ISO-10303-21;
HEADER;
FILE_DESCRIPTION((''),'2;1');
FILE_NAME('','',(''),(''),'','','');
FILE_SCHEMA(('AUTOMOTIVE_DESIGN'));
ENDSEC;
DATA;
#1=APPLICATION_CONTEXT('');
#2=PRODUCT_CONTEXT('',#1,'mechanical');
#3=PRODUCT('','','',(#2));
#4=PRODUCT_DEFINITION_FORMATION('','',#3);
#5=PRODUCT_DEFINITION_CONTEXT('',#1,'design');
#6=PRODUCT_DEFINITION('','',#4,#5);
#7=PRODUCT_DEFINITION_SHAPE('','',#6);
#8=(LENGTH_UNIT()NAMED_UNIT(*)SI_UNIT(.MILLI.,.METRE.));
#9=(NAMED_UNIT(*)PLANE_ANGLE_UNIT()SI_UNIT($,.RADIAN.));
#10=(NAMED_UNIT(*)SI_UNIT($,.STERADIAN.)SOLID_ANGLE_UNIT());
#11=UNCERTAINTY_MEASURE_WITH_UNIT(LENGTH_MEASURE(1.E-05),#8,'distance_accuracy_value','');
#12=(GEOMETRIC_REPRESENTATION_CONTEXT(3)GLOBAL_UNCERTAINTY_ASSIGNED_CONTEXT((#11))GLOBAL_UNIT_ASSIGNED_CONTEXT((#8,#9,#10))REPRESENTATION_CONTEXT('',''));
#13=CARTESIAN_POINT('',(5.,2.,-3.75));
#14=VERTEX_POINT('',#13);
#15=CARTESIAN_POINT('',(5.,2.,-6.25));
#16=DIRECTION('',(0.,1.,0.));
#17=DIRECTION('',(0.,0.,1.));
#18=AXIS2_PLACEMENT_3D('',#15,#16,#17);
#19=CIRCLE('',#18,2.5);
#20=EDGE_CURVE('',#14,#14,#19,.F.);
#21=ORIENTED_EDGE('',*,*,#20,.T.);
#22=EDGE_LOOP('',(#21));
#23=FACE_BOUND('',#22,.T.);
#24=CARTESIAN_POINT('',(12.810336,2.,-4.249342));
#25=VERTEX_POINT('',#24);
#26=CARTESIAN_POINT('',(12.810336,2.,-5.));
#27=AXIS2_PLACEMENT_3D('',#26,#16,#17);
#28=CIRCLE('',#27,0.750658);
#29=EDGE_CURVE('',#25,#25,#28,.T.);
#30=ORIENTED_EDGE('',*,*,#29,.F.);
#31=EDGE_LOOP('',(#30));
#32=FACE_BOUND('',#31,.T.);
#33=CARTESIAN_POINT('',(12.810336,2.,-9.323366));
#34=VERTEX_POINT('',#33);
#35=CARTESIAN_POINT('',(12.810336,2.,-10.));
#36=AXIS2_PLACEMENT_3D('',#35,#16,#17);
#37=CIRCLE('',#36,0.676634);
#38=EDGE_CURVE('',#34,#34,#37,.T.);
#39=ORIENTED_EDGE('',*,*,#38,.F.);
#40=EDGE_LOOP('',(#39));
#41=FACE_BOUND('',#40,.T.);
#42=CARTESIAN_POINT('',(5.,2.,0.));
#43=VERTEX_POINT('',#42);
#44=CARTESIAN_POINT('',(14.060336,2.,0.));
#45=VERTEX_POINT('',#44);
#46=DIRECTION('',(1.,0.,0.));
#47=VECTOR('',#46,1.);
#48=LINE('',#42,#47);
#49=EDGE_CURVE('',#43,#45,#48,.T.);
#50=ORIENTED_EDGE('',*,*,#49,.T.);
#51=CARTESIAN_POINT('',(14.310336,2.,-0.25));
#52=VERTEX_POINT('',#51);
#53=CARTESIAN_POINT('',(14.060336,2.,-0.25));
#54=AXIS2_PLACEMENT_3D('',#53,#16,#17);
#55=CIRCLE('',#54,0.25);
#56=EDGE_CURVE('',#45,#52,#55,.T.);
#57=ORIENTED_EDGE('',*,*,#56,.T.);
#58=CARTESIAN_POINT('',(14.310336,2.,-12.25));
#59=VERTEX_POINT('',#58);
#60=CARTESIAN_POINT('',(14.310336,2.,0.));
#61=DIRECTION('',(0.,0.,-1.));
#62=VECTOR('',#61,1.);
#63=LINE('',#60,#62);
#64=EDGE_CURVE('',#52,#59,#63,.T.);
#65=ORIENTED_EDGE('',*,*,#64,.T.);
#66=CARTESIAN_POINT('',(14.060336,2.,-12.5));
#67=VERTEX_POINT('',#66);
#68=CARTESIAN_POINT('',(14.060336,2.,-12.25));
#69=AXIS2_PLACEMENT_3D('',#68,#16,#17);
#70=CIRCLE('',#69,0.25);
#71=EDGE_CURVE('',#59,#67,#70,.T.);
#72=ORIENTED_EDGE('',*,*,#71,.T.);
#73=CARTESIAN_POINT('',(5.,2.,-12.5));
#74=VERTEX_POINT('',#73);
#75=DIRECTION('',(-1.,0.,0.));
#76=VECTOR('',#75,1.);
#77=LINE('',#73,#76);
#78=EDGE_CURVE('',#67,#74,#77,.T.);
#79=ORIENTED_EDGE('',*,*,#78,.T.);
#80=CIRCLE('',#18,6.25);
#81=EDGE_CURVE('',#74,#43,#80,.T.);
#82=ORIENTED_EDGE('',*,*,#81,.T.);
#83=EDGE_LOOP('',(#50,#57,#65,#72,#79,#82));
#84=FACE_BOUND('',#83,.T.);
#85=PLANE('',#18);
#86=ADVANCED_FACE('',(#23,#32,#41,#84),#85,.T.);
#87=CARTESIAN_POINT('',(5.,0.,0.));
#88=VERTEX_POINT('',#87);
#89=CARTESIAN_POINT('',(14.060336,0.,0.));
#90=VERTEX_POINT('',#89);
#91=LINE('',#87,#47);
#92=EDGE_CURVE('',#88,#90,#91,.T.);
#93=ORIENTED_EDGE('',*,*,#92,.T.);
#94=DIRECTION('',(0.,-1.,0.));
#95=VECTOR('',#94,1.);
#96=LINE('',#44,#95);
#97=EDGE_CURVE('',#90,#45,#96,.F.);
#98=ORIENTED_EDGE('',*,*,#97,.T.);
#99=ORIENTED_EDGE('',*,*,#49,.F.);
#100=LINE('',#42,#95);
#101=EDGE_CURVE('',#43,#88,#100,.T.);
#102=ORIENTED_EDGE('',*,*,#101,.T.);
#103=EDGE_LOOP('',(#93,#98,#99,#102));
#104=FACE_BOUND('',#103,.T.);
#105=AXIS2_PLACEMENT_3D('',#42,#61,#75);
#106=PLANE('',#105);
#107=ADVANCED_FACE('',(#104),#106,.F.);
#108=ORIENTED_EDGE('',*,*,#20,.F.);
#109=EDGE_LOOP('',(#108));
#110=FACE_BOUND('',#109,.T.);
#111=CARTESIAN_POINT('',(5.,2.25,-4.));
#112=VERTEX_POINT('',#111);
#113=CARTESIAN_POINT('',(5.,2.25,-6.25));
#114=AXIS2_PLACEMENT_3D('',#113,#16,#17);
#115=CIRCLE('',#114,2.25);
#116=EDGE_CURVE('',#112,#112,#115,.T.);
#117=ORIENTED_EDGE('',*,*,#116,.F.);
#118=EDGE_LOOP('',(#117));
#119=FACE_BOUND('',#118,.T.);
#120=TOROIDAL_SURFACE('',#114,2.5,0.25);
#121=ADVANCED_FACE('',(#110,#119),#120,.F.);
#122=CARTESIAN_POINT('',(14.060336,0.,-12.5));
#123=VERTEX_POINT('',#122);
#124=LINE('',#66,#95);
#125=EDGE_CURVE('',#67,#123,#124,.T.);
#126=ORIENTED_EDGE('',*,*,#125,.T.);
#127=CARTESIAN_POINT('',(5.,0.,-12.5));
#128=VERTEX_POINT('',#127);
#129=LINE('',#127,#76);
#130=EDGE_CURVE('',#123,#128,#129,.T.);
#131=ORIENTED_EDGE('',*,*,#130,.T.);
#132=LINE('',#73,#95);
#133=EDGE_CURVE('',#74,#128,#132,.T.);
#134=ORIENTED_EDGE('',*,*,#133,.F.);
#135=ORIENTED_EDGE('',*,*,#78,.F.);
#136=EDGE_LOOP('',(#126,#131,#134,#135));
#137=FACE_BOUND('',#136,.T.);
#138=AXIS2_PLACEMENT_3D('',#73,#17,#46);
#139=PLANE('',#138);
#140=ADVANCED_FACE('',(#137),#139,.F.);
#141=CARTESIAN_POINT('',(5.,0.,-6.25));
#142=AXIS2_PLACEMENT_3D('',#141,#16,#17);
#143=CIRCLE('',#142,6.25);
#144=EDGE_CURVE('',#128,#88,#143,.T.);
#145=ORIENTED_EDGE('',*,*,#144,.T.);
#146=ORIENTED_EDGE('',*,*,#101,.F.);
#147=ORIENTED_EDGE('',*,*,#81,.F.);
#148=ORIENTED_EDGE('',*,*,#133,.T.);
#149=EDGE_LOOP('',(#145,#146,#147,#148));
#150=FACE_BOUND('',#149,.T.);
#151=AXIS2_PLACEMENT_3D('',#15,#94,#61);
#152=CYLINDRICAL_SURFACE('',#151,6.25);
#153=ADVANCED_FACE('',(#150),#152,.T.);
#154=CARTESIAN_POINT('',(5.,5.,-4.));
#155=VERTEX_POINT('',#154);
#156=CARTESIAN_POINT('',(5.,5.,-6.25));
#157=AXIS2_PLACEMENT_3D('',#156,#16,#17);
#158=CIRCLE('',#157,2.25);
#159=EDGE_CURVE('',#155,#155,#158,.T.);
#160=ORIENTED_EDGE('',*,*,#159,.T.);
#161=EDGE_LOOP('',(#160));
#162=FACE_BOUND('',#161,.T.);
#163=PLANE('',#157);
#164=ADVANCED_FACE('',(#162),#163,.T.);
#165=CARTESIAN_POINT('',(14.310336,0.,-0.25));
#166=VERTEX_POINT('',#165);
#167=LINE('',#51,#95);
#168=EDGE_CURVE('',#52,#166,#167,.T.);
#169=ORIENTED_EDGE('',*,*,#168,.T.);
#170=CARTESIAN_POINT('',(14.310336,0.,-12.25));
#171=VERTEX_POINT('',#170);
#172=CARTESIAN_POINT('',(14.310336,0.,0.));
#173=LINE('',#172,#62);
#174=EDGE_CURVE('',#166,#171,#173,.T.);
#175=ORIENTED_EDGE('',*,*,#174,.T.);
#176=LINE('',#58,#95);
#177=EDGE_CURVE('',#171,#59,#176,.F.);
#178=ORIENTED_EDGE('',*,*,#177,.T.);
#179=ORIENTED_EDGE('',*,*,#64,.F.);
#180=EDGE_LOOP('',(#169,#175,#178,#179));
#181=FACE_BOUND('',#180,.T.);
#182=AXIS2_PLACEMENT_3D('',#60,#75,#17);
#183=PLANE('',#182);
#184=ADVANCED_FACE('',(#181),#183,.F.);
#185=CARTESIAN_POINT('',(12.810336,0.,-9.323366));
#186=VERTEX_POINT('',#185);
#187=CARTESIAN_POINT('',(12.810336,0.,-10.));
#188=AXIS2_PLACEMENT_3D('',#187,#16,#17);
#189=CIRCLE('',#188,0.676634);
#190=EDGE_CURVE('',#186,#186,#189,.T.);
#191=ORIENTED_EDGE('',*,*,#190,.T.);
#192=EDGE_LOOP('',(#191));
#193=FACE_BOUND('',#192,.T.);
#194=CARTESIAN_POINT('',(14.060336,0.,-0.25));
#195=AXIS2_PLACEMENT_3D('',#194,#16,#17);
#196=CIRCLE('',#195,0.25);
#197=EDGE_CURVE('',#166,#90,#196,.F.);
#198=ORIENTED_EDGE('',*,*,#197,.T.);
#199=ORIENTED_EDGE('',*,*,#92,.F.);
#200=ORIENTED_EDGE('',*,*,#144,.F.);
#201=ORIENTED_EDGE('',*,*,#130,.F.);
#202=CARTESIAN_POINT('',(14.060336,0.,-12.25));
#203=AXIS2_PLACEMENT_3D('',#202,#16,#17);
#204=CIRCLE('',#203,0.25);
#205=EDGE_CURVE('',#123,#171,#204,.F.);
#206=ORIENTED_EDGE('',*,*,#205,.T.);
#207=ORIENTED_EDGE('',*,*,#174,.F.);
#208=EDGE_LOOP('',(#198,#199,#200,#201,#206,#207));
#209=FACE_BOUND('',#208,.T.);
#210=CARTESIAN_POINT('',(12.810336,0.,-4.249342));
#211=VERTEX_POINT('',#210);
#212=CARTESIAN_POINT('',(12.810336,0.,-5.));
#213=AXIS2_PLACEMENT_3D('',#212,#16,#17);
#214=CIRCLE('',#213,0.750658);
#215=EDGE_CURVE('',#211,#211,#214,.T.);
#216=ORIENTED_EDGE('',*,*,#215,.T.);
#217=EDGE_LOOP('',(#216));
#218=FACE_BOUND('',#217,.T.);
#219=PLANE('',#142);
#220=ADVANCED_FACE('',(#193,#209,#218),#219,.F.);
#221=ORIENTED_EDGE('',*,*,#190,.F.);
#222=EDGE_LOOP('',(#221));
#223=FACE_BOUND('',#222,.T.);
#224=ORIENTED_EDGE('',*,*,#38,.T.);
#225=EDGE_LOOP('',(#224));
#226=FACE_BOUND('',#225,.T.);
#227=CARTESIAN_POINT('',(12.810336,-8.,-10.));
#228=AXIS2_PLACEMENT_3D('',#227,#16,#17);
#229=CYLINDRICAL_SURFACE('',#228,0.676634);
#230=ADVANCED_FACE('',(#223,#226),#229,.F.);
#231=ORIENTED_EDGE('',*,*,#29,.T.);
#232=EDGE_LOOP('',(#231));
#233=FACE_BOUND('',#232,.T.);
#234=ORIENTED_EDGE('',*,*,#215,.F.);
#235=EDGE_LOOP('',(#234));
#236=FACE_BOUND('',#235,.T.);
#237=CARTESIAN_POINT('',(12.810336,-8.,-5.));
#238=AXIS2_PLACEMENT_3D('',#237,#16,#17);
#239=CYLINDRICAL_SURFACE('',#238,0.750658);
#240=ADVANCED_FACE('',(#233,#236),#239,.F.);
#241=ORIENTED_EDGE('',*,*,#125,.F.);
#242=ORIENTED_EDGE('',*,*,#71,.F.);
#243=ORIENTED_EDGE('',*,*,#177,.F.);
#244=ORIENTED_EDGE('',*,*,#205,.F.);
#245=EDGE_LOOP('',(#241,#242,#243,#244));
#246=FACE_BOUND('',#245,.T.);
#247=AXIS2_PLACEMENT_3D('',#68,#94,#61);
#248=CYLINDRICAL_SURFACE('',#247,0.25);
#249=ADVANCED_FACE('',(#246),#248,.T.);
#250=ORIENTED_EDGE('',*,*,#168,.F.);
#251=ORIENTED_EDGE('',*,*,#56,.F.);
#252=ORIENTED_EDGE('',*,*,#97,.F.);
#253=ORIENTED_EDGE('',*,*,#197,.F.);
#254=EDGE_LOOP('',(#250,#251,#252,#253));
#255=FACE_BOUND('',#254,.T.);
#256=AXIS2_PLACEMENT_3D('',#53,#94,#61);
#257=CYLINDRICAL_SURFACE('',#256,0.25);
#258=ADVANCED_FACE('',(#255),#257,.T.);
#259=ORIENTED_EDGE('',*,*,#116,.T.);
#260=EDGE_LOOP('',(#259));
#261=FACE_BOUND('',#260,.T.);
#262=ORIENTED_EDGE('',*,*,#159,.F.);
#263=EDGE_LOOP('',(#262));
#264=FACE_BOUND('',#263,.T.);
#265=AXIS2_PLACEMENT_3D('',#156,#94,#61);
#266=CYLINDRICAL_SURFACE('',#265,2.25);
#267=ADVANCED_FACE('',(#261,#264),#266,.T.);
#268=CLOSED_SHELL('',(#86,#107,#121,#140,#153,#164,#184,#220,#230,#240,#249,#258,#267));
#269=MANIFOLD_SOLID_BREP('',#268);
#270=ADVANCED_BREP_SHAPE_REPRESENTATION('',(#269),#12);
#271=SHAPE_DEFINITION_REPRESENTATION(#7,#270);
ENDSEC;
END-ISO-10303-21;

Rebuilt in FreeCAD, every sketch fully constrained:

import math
import FreeCAD as App
import Part
import Sketcher

V = App.Vector


def edges_at(feature, points):
    """Names of the edges that pass closest to the given points."""
    edges = feature.Shape.Edges
    near = lambda p: min(range(len(edges)), key=lambda i: edges[i].distToShape(Part.Vertex(*p))[0])
    return sorted({f"Edge{near(p) + 1}" for p in points})

doc = App.newDocument("Part")
params = doc.addObject("Spreadsheet::Sheet", "Params")
for row, (alias, value) in enumerate([
    ("sketch1_radius", "6.25 mm"),
    ("pad1_length", "2 mm"),
    ("sketch2_diameter", "4.5 mm"),
    ("pad2_length", "3 mm"),
    ("pocket1_length", "10 mm"),
    ("fillet_radius", "0.25 mm"),
    ("fillet2_radius", "0.25 mm"),
], start=1):
    params.set(f"A{row}", alias)
    params.set(f"B{row}", "=" + value)
    params.setAlias(f"B{row}", alias)

body = doc.addObject("PartDesign::Body", "Body")

sketch1 = body.newObject("Sketcher::SketchObject", "Sketch")
sketch1.AttachmentSupport = (doc.getObject("XZ_Plane"), [""])
sketch1.MapMode = "FlatFace"
sketch1.addGeometry([
    Part.LineSegment(V(5, 0, 0), V(14, 0, 0)),
    Part.LineSegment(V(14, 0, 0), V(14, -12, 0)),
    Part.LineSegment(V(14, -12, 0), V(5, -12, 0)),
    Part.ArcOfCircle(Part.Circle(V(5, -6, 0), V(0, 0, 1), 6), math.radians(90), math.radians(270)),
], False)
sketch1.addConstraint([
    Sketcher.Constraint("Coincident", 0, 2, 1, 1),
    Sketcher.Constraint("Coincident", 1, 2, 2, 1),
    Sketcher.Constraint("Tangent", 2, 2, 3, 2),
    Sketcher.Constraint("Tangent", 3, 1, 0, 1),
    Sketcher.Constraint("Horizontal", 0),
    Sketcher.Constraint("Vertical", 1),
    Sketcher.Constraint("Horizontal", 2),
    Sketcher.Constraint("PointOnObject", 0, 2, -1),
    Sketcher.Constraint("Radius", 3, 6.25),
    Sketcher.Constraint("DistanceX", -1, 1, 3, 3, 5.0),
    Sketcher.Constraint("DistanceX", 0, 1, 0, 2, 9.310336),
])
sketch1.setExpression("Constraints[8]", "Params.sketch1_radius")
pad1 = body.newObject("PartDesign::Pad", "Pad")
pad1.Profile = sketch1
pad1.setExpression("Length", "Params.pad1_length")
pad1.Reversed = True

sketch2 = body.newObject("Sketcher::SketchObject", "Sketch001")
sketch2.AttachmentSupport = (doc.getObject("XZ_Plane"), [""])
sketch2.MapMode = "FlatFace"
sketch2.AttachmentOffset = App.Placement(V(0, 0, -2), App.Rotation())
sketch2.addGeometry(Part.Circle(V(5, -6.2, 0), V(0, 0, 1), 2.2), False)
sketch2.addConstraint([
    Sketcher.Constraint("Diameter", 0, 4.5),
    Sketcher.Constraint("DistanceX", -1, 1, 0, 3, 5.0),
    Sketcher.Constraint("DistanceY", 0, 3, -1, 1, 6.25),
])
sketch2.setExpression("Constraints[0]", "Params.sketch2_diameter")
pad2 = body.newObject("PartDesign::Pad", "Pad001")
pad2.Profile = sketch2
pad2.setExpression("Length", "Params.pad2_length")
pad2.Reversed = True

sketch3 = body.newObject("Sketcher::SketchObject", "Sketch002")
sketch3.AttachmentSupport = (doc.getObject("XZ_Plane"), [""])
sketch3.MapMode = "FlatFace"
sketch3.AttachmentOffset = App.Placement(V(0, 0, -2), App.Rotation())
sketch3.addGeometry([
    Part.Circle(V(12.8, -10, 0), V(0, 0, 1), 0.7),
    Part.Circle(V(12.8, -5, 0), V(0, 0, 1), 0.8),
], False)
sketch3.addConstraint([
    Sketcher.Constraint("Vertical", 0, 3, 1, 3),
    Sketcher.Constraint("DistanceY", 0, 3, -1, 1, 10.0),
    Sketcher.Constraint("DistanceY", 1, 3, -1, 1, 5.0),
    Sketcher.Constraint("Diameter", 0, 1.353267),
    Sketcher.Constraint("Diameter", 1, 1.501315),
    Sketcher.Constraint("DistanceX", -1, 1, 0, 3, 12.810336),
])
pocket1 = body.newObject("PartDesign::Pocket", "Pocket")
pocket1.Profile = sketch3
pocket1.setExpression("Length", "Params.pocket1_length")
pocket1.Reversed = True
doc.recompute()

fillet = body.newObject("PartDesign::Fillet", "Fillet")
fillet.Base = (pocket1, edges_at(pocket1, [(5, 2, -8.5)]))
fillet.setExpression("Radius", "Params.fillet_radius")
doc.recompute()

fillet2 = body.newObject("PartDesign::Fillet", "Fillet001")
fillet2.Base = (fillet, edges_at(fillet, [(14.31, 1, 0), (14.31, 1, -12.5)]))
fillet2.setExpression("Radius", "Params.fillet2_radius")

doc.recompute()
